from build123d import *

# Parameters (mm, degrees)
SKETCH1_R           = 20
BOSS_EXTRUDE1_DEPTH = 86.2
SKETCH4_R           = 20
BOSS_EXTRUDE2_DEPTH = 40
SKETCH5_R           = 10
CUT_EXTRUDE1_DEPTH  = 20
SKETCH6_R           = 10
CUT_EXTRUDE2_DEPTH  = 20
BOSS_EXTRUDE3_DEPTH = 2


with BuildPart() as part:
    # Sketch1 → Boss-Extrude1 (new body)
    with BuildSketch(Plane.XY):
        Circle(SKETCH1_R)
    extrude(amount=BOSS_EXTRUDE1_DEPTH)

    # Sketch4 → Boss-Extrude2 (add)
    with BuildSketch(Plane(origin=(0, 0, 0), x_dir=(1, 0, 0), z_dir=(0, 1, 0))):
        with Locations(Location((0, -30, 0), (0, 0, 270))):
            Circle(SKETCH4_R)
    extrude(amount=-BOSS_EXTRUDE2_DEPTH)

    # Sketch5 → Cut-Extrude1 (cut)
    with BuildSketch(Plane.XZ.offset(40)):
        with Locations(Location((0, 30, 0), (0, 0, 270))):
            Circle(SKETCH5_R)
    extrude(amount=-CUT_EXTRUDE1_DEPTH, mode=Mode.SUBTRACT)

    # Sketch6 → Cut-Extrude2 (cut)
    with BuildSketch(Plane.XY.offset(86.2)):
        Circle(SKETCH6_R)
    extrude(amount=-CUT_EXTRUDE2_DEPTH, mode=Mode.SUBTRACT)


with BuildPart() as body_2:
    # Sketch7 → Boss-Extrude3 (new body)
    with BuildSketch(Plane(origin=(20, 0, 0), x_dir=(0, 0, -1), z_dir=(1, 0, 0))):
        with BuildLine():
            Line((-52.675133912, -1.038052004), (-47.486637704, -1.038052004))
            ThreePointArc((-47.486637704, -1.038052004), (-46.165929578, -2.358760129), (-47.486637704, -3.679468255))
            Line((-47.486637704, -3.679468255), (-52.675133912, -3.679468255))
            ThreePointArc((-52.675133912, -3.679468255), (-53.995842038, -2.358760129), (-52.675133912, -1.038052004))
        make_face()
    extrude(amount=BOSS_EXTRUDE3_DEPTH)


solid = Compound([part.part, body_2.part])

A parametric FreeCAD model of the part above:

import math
import FreeCAD as App
import Part
import Sketcher
from FreeCAD import Vector
Q = App.Units.Quantity

doc = App.newDocument("Part")
body = doc.addObject("PartDesign::Body", "Body")

# Sketch on XY plane
sketch1 = doc.addObject("Sketcher::SketchObject", "Sketch")
body.addObject(sketch1)
sketch1.AttachmentSupport = (doc.XY_Plane, [""])
sketch1.MapMode = "FlatFace"
sketch1.addGeometry(Part.Circle(Vector(0, 0, 0), Vector(0, 0, 1), 20), False)
sketch1.addConstraint(Sketcher.Constraint("Coincident", 0, 3, -1, 1))
sketch1.addConstraint(Sketcher.Constraint("Diameter", 0, Q("40 mm")))
pad1 = doc.addObject("PartDesign::Pad", "Pad")
body.addObject(pad1)
pad1.Profile = sketch1
pad1.Length = 86.2

# Sketch on XZ plane
sketch2 = doc.addObject("Sketcher::SketchObject", "Sketch001")
body.addObject(sketch2)
sketch2.AttachmentSupport = (doc.XZ_Plane, [""])
sketch2.MapMode = "FlatFace"
sketch2.addGeometry(Part.Circle(Vector(0, 30, 0), Vector(0, 0, 1), 20), False)
sketch2.addConstraint(Sketcher.Constraint("PointOnObject", 0, 3, -2))
sketch2.addConstraint(Sketcher.Constraint("Diameter", 0, Q("40 mm")))
sketch2.addConstraint(Sketcher.Constraint("DistanceY", -1, 1, 0, 3, Q("30 mm")))
pad2 = doc.addObject("PartDesign::Pad", "Pad001")
body.addObject(pad2)
pad2.Profile = sketch2
pad2.Length = 40

# Sketch on XZ plane
sketch3 = doc.addObject("Sketcher::SketchObject", "Sketch002")
body.addObject(sketch3)
sketch3.AttachmentSupport = (doc.XZ_Plane, [""])
sketch3.MapMode = "FlatFace"
sketch3.AttachmentOffset = App.Placement(Vector(0, 0, 40), App.Rotation())
sketch3.addGeometry(Part.Circle(Vector(0, 30, 0), Vector(0, 0, 1), 10), False)
sketch3.addConstraint(Sketcher.Constraint("PointOnObject", 0, 3, -2))
sketch3.addConstraint(Sketcher.Constraint("Diameter", 0, Q("20 mm")))
sketch3.addConstraint(Sketcher.Constraint("DistanceY", -1, 1, 0, 3, Q("30 mm")))
pocket1 = doc.addObject("PartDesign::Pocket", "Pocket")
body.addObject(pocket1)
pocket1.Profile = sketch3
pocket1.Length = 20

# Sketch on XY plane
sketch4 = doc.addObject("Sketcher::SketchObject", "Sketch003")
body.addObject(sketch4)
sketch4.AttachmentSupport = (doc.XY_Plane, [""])
sketch4.MapMode = "FlatFace"
sketch4.AttachmentOffset = App.Placement(Vector(0, 0, 86.2), App.Rotation())
sketch4.addGeometry(Part.Circle(Vector(0, 0, 0), Vector(0, 0, 1), 10), False)
sketch4.addConstraint(Sketcher.Constraint("Coincident", 0, 3, -1, 1))
sketch4.addConstraint(Sketcher.Constraint("Diameter", 0, Q("20 mm")))
pocket2 = doc.addObject("PartDesign::Pocket", "Pocket001")
body.addObject(pocket2)
pocket2.Profile = sketch4
pocket2.Length = 20
body2 = doc.addObject("PartDesign::Body", "Body001")

# Sketch on YZ plane
sketch5 = doc.addObject("Sketcher::SketchObject", "Sketch004")
body2.addObject(sketch5)
sketch5.AttachmentSupport = (doc.getObject("YZ_Plane001"), [""])
sketch5.MapMode = "FlatFace"
sketch5.AttachmentOffset = App.Placement(Vector(0, 0, 20), App.Rotation())
sketch5.addGeometry(Part.LineSegment(Vector(-1, 47.5, 0), Vector(-1, 52.7, 0)), False)
sketch5.addGeometry(Part.ArcOfCircle(Part.Circle(Vector(-2.4, 52.7, 0), Vector(0, 0, 1), 1.3), math.radians(0), math.radians(180)), False)
sketch5.addGeometry(Part.LineSegment(Vector(-3.7, 52.7, 0), Vector(-3.7, 47.5, 0)), False)
sketch5.addGeometry(Part.ArcOfCircle(Part.Circle(Vector(-2.4, 47.5, 0), Vector(0, 0, 1), 1.3), math.radians(180), math.radians(360)), False)
sketch5.addConstraint(Sketcher.Constraint("Tangent", 0, 2, 1, 1))
sketch5.addConstraint(Sketcher.Constraint("Tangent", 1, 2, 2, 1))
sketch5.addConstraint(Sketcher.Constraint("Tangent", 2, 2, 3, 1))
sketch5.addConstraint(Sketcher.Constraint("Tangent", 3, 2, 0, 1))
sketch5.addConstraint(Sketcher.Constraint("Vertical", 0))
sketch5.addConstraint(Sketcher.Constraint("Vertical", 2))
sketch5.addConstraint(Sketcher.Constraint("Radius", 1, Q("1.320708 mm")))
sketch5.addConstraint(Sketcher.Constraint("DistanceY", 0, 1, 0, 2, Q("5.188496 mm")))
sketch5.addConstraint(Sketcher.Constraint("DistanceX", 1, 3, -1, 1, Q("2.35876 mm")))
sketch5.addConstraint(Sketcher.Constraint("DistanceY", -1, 1, 1, 3, Q("52.675134 mm")))
pad3 = doc.addObject("PartDesign::Pad", "Pad002")
body2.addObject(pad3)
pad3.Profile = sketch5
pad3.Length = 2

doc.recompute()
